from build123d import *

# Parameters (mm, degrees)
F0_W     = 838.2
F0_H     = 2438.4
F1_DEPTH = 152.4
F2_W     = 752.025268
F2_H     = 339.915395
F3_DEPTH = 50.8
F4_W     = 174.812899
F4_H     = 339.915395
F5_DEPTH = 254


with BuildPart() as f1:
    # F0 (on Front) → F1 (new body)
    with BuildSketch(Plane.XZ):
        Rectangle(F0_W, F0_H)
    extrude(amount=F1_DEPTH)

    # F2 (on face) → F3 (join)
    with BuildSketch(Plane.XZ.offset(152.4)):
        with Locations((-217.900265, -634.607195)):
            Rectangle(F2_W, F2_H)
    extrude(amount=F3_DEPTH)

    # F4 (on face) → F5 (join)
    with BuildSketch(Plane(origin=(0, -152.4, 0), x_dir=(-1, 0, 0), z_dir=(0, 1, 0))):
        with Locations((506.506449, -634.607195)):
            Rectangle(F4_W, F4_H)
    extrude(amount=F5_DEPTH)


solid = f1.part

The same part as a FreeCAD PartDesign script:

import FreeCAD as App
import Part
import Sketcher

V = App.Vector
Q = App.Units.Quantity


def add_polygon(sketch, points):
    """Adds a closed chain of lines whose ends are joined by coincident constraints."""
    first, n = sketch.GeometryCount, len(points)
    for a, b in zip(points, points[1:] + points[:1]):
        sketch.addGeometry(Part.LineSegment(App.Vector(*a, 0), App.Vector(*b, 0)), False)
    for i in range(n):
        sketch.addConstraint(Sketcher.Constraint("Coincident", first + i, 2, first + (i + 1) % n, 1))

doc = App.newDocument("Part")
params = doc.addObject("Spreadsheet::Sheet", "Params")
for row, (alias, value) in enumerate([
    ("sketch1_width", "33 in"),
    ("sketch1_height", "96 in"),
    ("pad1_length", "6 in"),
    ("pad2_length", "2 in"),
    ("pad3_length", "10 in"),
], start=1):
    params.set(f"A{row}", alias)
    params.set(f"B{row}", "=" + value)
    params.setAlias(f"B{row}", alias)

body = doc.addObject("PartDesign::Body", "Body")

# Sketch on XZ plane
sketch1 = doc.addObject("Sketcher::SketchObject", "Sketch")
body.addObject(sketch1)
sketch1.AttachmentSupport = (doc.XZ_Plane, [""])
sketch1.MapMode = "FlatFace"
add_polygon(sketch1, [(-419, 1219), (-419, -1219), (419, -1219), (419, 1219)])  # lines 0-3
sketch1.addConstraint(Sketcher.Constraint("Vertical", 0))
sketch1.addConstraint(Sketcher.Constraint("Horizontal", 1))
sketch1.addConstraint(Sketcher.Constraint("Vertical", 2))
sketch1.addConstraint(Sketcher.Constraint("Horizontal", 3))
sketch1.addConstraint(Sketcher.Constraint("Symmetric", 0, 2, 2, 2, -1, 1))
sketch1.addConstraint(Sketcher.Constraint("DistanceX", 1, 1, 1, 2, Q("33 in")))
sketch1.addConstraint(Sketcher.Constraint("DistanceY", 0, 2, 0, 1, Q("96 in")))
sketch1.setExpression("Constraints[9]", "Params.sketch1_width")
sketch1.setExpression("Constraints[10]", "Params.sketch1_height")
pad1 = doc.addObject("PartDesign::Pad", "Pad")
body.addObject(pad1)
pad1.Profile = sketch1
pad1.setExpression("Length", "Params.pad1_length")

# Sketch on XZ plane
sketch2 = doc.addObject("Sketcher::SketchObject", "Sketch001")
body.addObject(sketch2)
sketch2.AttachmentSupport = (doc.XZ_Plane, [""])
sketch2.MapMode = "FlatFace"
sketch2.AttachmentOffset = App.Placement(V(0, 0, 6 * 25.4), App.Rotation())
add_polygon(sketch2, [(-594, -465), (-594, -805), (158, -805), (158, -465)])  # lines 0-3
sketch2.addConstraint(Sketcher.Constraint("Vertical", 0))
sketch2.addConstraint(Sketcher.Constraint("Horizontal", 1))
sketch2.addConstraint(Sketcher.Constraint("Vertical", 2))
sketch2.addConstraint(Sketcher.Constraint("Horizontal", 3))
sketch2.addConstraint(Sketcher.Constraint("DistanceX", 1, 1, 1, 2, Q("752.025268 mm")))
sketch2.addConstraint(Sketcher.Constraint("DistanceX", 0, 2, -1, 1, Q("593.912899 mm")))
sketch2.addConstraint(Sketcher.Constraint("DistanceY", 0, 2, 0, 1, Q("339.915395 mm")))
sketch2.addConstraint(Sketcher.Constraint("DistanceY", 0, 2, -1, 1, Q("804.564893 mm")))
pad2 = doc.addObject("PartDesign::Pad", "Pad001")
body.addObject(pad2)
pad2.Profile = sketch2
pad2.setExpression("Length", "Params.pad2_length")

# Sketch on XZ plane
sketch3 = doc.addObject("Sketcher::SketchObject", "Sketch002")
body.addObject(sketch3)
sketch3.AttachmentSupport = (doc.XZ_Plane, [""])
sketch3.MapMode = "FlatFace"
sketch3.AttachmentOffset = App.Placement(V(0, 0, 6 * 25.4), App.Rotation())
add_polygon(sketch3, [(-419, -465), (-419, -805), (-594, -805), (-594, -465)])  # lines 0-3
sketch3.addConstraint(Sketcher.Constraint("Vertical", 0))
sketch3.addConstraint(Sketcher.Constraint("Horizontal", 1))
sketch3.addConstraint(Sketcher.Constraint("Vertical", 2))
sketch3.addConstraint(Sketcher.Constraint("Horizontal", 3))
sketch3.addConstraint(Sketcher.Constraint("DistanceX", 0, 2, -1, 1, Q("16.5 in")))
sketch3.addConstraint(Sketcher.Constraint("DistanceX", 1, 2, 1, 1, Q("174.812899 mm")))
sketch3.addConstraint(Sketcher.Constraint("DistanceY", 0, 2, 0, 1, Q("339.915395 mm")))
sketch3.addConstraint(Sketcher.Constraint("DistanceY", 0, 2, -1, 1, Q("804.564893 mm")))
pad3 = doc.addObject("PartDesign::Pad", "Pad002")
body.addObject(pad3)
pad3.Profile = sketch3
pad3.setExpression("Length", "Params.pad3_length")
pad3.Reversed = True

doc.recompute()
